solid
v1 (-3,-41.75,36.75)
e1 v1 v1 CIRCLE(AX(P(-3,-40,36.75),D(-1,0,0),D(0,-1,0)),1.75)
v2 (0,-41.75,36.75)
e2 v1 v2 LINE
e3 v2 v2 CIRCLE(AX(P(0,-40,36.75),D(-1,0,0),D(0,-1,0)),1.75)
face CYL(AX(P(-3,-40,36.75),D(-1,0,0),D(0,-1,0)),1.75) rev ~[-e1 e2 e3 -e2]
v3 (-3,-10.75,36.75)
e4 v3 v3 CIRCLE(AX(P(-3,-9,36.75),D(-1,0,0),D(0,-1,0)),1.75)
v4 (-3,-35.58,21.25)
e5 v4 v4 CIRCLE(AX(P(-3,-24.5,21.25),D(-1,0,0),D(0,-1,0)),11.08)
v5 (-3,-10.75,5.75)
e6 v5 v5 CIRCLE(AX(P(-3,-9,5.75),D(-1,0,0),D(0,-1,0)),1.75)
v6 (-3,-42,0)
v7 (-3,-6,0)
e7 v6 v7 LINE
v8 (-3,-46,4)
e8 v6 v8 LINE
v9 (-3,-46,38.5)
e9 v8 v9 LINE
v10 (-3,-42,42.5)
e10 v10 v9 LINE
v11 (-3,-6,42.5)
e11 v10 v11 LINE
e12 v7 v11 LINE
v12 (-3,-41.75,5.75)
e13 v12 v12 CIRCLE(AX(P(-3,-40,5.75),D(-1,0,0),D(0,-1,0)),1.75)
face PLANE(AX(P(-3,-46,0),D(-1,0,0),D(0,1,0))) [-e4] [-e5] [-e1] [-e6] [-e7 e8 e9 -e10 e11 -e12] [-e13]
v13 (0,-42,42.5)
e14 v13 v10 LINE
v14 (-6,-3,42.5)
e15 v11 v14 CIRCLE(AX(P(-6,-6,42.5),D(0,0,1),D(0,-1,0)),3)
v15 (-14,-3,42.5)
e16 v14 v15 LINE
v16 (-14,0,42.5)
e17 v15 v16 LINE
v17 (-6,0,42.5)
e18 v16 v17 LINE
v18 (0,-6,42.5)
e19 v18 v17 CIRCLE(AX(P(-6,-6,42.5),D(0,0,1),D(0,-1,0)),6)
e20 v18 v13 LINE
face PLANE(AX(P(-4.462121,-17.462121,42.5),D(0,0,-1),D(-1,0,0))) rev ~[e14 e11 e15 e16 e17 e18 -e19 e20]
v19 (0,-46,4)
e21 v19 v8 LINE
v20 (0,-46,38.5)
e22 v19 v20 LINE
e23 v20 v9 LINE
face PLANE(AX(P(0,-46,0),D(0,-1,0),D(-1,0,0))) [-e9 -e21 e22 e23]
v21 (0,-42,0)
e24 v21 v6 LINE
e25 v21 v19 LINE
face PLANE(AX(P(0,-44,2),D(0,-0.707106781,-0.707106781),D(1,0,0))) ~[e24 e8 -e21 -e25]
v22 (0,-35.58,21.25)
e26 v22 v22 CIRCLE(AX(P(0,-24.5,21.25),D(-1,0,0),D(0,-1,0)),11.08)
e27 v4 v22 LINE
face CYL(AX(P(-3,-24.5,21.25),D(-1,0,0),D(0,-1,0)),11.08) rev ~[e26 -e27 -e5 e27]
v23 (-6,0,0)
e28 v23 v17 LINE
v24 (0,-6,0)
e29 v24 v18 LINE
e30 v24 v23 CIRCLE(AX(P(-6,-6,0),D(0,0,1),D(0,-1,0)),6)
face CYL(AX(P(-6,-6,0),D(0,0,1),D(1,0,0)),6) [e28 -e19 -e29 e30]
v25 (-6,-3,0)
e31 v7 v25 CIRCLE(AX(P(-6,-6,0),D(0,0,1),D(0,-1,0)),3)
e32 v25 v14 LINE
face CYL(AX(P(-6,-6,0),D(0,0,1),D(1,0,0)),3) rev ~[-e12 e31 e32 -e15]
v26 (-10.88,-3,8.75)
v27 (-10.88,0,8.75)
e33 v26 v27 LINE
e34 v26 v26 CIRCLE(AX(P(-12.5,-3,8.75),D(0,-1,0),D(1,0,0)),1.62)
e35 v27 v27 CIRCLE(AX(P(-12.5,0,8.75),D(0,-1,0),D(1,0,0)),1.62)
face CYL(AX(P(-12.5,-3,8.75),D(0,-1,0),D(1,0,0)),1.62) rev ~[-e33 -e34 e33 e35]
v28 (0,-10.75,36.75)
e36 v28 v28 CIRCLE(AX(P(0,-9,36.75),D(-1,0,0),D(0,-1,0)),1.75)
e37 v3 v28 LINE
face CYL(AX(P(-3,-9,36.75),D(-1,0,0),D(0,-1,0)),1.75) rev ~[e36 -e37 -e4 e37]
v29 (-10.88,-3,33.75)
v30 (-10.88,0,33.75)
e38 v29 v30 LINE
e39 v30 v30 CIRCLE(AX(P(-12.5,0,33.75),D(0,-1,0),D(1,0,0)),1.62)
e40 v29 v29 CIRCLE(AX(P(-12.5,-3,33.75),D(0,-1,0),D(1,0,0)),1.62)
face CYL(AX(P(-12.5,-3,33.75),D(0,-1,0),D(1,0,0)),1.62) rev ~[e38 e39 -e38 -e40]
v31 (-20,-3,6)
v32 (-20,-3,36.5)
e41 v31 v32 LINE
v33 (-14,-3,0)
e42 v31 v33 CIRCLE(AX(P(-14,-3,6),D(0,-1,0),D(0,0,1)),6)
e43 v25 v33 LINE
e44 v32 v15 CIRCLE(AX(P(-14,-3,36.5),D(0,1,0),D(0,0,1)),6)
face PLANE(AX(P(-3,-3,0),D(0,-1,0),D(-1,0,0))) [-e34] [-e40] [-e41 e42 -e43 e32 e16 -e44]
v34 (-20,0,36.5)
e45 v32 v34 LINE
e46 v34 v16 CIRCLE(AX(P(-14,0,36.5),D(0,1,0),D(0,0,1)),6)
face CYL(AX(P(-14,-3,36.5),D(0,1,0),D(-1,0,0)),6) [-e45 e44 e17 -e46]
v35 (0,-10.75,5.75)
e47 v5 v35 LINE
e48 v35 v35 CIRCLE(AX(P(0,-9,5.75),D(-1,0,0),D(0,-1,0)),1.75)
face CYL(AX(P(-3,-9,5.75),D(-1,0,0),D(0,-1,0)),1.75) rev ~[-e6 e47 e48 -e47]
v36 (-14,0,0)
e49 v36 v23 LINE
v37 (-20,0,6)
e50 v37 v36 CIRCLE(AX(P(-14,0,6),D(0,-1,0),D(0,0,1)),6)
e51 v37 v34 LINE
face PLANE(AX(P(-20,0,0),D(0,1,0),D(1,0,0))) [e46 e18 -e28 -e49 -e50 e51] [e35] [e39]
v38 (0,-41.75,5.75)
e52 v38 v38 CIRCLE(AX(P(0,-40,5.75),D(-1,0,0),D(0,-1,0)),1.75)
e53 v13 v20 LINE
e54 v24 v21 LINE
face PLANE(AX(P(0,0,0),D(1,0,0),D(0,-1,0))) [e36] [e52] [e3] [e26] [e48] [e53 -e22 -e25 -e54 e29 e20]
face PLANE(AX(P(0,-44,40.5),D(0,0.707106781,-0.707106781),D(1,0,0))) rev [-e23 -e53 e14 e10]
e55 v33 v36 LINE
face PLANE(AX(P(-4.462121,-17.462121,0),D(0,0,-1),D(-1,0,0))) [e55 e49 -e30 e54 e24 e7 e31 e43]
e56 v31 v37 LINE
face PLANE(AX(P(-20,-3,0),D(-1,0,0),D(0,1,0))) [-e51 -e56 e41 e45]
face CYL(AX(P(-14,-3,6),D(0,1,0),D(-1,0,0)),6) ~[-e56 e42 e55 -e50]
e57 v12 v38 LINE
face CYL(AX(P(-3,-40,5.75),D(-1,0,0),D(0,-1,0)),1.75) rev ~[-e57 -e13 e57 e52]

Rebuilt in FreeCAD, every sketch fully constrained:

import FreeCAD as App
import Part
import Sketcher
from FreeCAD import Vector


def edges_at(feature, points):
    """Names of the edges that pass closest to the given points."""
    edges = feature.Shape.Edges
    near = lambda p: min(range(len(edges)), key=lambda i: edges[i].distToShape(Part.Vertex(*p))[0])
    return sorted({f"Edge{near(p) + 1}" for p in points})

doc = App.newDocument("Part")
body = doc.addObject("PartDesign::Body", "Body")

sketch1 = body.newObject("Sketcher::SketchObject", "Sketch")
sketch1.AttachmentSupport = (doc.getObject("XY_Plane"), [""])
sketch1.MapMode = "FlatFace"
sketch1.addGeometry(Part.LineSegment(Vector(0, 0, 0), Vector(-20, 0, 0)), False)
sketch1.addGeometry(Part.LineSegment(Vector(-20, 0, 0), Vector(-20, -3, 0)), False)
sketch1.addGeometry(Part.LineSegment(Vector(-20, -3, 0), Vector(-3, -3, 0)), False)
sketch1.addGeometry(Part.LineSegment(Vector(-3, -3, 0), Vector(-3, -46, 0)), False)
sketch1.addGeometry(Part.LineSegment(Vector(-3, -46, 0), Vector(0, -46, 0)), False)
sketch1.addGeometry(Part.LineSegment(Vector(0, -46, 0), Vector(0, 0, 0)), False)
sketch1.addConstraint(Sketcher.Constraint("Coincident", 0, 2, 1, 1))
sketch1.addConstraint(Sketcher.Constraint("Coincident", 1, 2, 2, 1))
sketch1.addConstraint(Sketcher.Constraint("Coincident", 2, 2, 3, 1))
sketch1.addConstraint(Sketcher.Constraint("Coincident", 3, 2, 4, 1))
sketch1.addConstraint(Sketcher.Constraint("Coincident", 4, 2, 5, 1))
sketch1.addConstraint(Sketcher.Constraint("Coincident", 5, 2, 0, 1))
sketch1.addConstraint(Sketcher.Constraint("Horizontal", 0))
sketch1.addConstraint(Sketcher.Constraint("Vertical", 1))
sketch1.addConstraint(Sketcher.Constraint("Horizontal", 2))
sketch1.addConstraint(Sketcher.Constraint("Vertical", 3))
sketch1.addConstraint(Sketcher.Constraint("Horizontal", 4))
sketch1.addConstraint(Sketcher.Constraint("Vertical", 5))
sketch1.addConstraint(Sketcher.Constraint("Coincident", 5, 2, -1, 1))
sketch1.addConstraint(Sketcher.Constraint("Equal", 4, 1))
sketch1.addConstraint(Sketcher.Constraint("DistanceX", 0, 2, 0, 1, 20.0))
sketch1.addConstraint(Sketcher.Constraint("DistanceX", 2, 1, 2, 2, 17.0))
sketch1.addConstraint(Sketcher.Constraint("DistanceY", 3, 2, 3, 1, 43.0))
pad1 = body.newObject("PartDesign::Pad", "Pad")
pad1.Profile = sketch1
pad1.Length = 42.5
doc.recompute()

fillet = body.newObject("PartDesign::Fillet", "Fillet")
fillet.Base = (pad1, edges_at(pad1, [(-20, -1.5, 0), (-20, -1.5, 42.5)]))
fillet.Radius = 6

sketch2 = body.newObject("Sketcher::SketchObject", "Sketch001")
sketch2.AttachmentSupport = (doc.getObject("XZ_Plane"), [""])
sketch2.MapMode = "FlatFace"
sketch2.AttachmentOffset = App.Placement(Vector(0, 0, 3), App.Rotation())
sketch2.addGeometry(Part.Circle(Vector(-12.5, 33.75, 0), Vector(0, 0, 1), 1.62), False)
sketch2.addGeometry(Part.Circle(Vector(-12.5, 8.75, 0), Vector(0, 0, 1), 1.62), False)
sketch2.addConstraint(Sketcher.Constraint("Equal", 0, 1))
sketch2.addConstraint(Sketcher.Constraint("Vertical", 0, 3, 1, 3))
sketch2.addConstraint(Sketcher.Constraint("Diameter", 0, 3.24))
sketch2.addConstraint(Sketcher.Constraint("DistanceY", 1, 3, 0, 3, 25.0))
sketch2.addConstraint(Sketcher.Constraint("DistanceX", 0, 3, -1, 1, 12.5))
sketch2.addConstraint(Sketcher.Constraint("DistanceY", -1, 1, 0, 3, 33.75))
pocket1 = body.newObject("PartDesign::Pocket", "Pocket")
pocket1.Profile = sketch2
pocket1.Length = 5
doc.recompute()

chamfer = body.newObject("PartDesign::Chamfer", "Chamfer")
chamfer.Base = (pocket1, edges_at(pocket1, [(-1.5, -46, 0), (-1.5, -46, 42.5)]))
chamfer.Size = 4

sketch3 = body.newObject("Sketcher::SketchObject", "Sketch002")
sketch3.AttachmentSupport = (doc.getObject("YZ_Plane"), [""])
sketch3.MapMode = "FlatFace"
sketch3.AttachmentOffset = App.Placement(Vector(0, 0, -3), App.Rotation())
sketch3.addGeometry(Part.Circle(Vector(-24.5, 21.25, 0), Vector(0, 0, 1), 11.08), False)
sketch3.addGeometry(Part.Circle(Vector(-9, 36.75, 0), Vector(0, 0, 1), 1.75), False)
sketch3.addGeometry(Part.Circle(Vector(-40, 36.75, 0), Vector(0, 0, 1), 1.75), False)
sketch3.addGeometry(Part.Circle(Vector(-9, 5.75, 0), Vector(0, 0, 1), 1.75), False)
sketch3.addGeometry(Part.Circle(Vector(-40, 5.75, 0), Vector(0, 0, 1), 1.75), False)
sketch3.addConstraint(Sketcher.Constraint("Equal", 1, 2))
sketch3.addConstraint(Sketcher.Constraint("Equal", 2, 3))
sketch3.addConstraint(Sketcher.Constraint("Equal", 3, 4))
sketch3.addConstraint(Sketcher.Constraint("Horizontal", 1, 3, 2, 3))
sketch3.addConstraint(Sketcher.Constraint("Horizontal", 3, 3, 4, 3))
sketch3.addConstraint(Sketcher.Constraint("Vertical", 1, 3, 3, 3))
sketch3.addConstraint(Sketcher.Constraint("Vertical", 2, 3, 4, 3))
sketch3.addConstraint(Sketcher.Constraint("Diameter", 1, 3.5))
sketch3.addConstraint(Sketcher.Constraint("Diameter", 0, 22.16))
sketch3.addConstraint(Sketcher.Constraint("DistanceX", 1, 3, -1, 1, 9.0))
sketch3.addConstraint(Sketcher.Constraint("DistanceX", 2, 3, -1, 1, 40.0))
sketch3.addConstraint(Sketcher.Constraint("DistanceY", 3, 3, 1, 3, 31.0))
sketch3.addConstraint(Sketcher.Constraint("DistanceX", 0, 3, -1, 1, 24.5))
sketch3.addConstraint(Sketcher.Constraint("DistanceY", 0, 3, 1, 3, 15.5))
sketch3.addConstraint(Sketcher.Constraint("DistanceY", -1, 1, 0, 3, 21.25))
pocket2 = body.newObject("PartDesign::Pocket", "Pocket001")
pocket2.Profile = sketch3
pocket2.Length = 5
pocket2.Reversed = True
doc.recompute()

fillet2 = body.newObject("PartDesign::Fillet", "Fillet001")
fillet2.Base = (pocket2, edges_at(pocket2, [(-3, -3, 21.25)]))
fillet2.Radius = 3
doc.recompute()

fillet3 = body.newObject("PartDesign::Fillet", "Fillet002")
fillet3.Base = (fillet2, edges_at(fillet2, [(0, 0, 21.25)]))
fillet3.Radius = 6

doc.recompute()
